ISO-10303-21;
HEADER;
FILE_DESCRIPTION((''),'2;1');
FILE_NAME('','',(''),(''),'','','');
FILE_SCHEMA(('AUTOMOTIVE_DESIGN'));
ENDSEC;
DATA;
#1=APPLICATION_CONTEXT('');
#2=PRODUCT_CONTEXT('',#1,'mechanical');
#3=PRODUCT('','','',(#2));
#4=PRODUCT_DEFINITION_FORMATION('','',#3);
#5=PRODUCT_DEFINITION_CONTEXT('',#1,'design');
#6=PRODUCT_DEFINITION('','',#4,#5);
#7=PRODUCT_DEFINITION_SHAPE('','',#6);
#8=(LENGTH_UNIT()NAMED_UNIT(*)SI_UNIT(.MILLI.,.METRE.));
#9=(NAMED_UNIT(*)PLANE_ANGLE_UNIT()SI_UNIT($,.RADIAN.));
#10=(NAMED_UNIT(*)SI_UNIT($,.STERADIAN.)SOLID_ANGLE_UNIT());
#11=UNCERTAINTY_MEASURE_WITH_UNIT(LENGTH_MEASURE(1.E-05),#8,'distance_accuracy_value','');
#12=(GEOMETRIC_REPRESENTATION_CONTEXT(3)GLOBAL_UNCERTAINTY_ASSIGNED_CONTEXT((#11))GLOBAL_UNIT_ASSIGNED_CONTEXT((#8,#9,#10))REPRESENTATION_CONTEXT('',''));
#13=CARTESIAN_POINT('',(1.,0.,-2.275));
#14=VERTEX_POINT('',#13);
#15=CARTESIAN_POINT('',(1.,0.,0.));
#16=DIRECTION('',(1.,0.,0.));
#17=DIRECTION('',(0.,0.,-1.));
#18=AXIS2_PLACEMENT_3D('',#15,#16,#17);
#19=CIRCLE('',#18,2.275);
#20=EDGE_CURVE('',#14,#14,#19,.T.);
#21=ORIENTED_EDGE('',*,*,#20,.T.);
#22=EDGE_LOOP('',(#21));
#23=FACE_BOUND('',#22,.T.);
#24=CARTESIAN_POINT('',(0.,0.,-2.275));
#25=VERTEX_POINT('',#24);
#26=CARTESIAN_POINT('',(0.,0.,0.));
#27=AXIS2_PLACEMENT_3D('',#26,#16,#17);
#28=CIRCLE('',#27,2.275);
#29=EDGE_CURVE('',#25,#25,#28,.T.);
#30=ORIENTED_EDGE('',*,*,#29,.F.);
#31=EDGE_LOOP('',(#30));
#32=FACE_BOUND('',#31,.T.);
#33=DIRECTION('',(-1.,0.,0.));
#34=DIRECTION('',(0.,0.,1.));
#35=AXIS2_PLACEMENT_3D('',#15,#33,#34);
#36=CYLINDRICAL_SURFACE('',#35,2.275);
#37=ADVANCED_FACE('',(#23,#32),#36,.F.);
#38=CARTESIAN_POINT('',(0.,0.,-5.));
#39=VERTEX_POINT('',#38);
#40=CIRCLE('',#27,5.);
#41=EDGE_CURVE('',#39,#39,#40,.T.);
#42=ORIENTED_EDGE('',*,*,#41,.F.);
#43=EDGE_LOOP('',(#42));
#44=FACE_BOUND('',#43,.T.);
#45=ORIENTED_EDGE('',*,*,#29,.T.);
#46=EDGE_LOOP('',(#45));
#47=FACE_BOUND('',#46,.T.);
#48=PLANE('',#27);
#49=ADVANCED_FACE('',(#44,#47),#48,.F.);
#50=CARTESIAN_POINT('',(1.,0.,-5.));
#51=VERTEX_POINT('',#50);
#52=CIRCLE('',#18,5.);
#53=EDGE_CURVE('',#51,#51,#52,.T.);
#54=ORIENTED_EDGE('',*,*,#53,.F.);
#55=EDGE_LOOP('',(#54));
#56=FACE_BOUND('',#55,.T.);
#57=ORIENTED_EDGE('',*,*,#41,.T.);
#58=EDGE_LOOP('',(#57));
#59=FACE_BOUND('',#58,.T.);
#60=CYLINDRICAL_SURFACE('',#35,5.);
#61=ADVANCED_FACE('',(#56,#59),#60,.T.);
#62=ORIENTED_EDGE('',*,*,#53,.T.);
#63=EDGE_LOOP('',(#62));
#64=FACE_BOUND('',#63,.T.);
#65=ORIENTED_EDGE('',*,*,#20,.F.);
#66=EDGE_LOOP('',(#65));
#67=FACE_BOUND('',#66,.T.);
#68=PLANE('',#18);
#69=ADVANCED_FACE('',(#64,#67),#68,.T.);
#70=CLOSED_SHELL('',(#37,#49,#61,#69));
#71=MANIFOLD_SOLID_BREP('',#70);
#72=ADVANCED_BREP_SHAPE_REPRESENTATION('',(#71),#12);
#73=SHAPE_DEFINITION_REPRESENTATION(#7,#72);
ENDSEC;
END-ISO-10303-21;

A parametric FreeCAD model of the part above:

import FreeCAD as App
import Part
import Sketcher

V = App.Vector

doc = App.newDocument("Part")
params = doc.addObject("Spreadsheet::Sheet", "Params")
for row, (alias, value) in enumerate([
    ("sketch1_diameter", "10 mm"),
    ("sketch1_diameter2", "4.55 mm"),
    ("pad1_length", "1 mm"),
], start=1):
    params.set(f"A{row}", alias)
    params.set(f"B{row}", "=" + value)
    params.setAlias(f"B{row}", alias)

body = doc.addObject("PartDesign::Body", "Body")

sketch1 = doc.addObject("Sketcher::SketchObject", "Sketch")
body.addObject(sketch1)
sketch1.AttachmentSupport = (doc.YZ_Plane, [""])
sketch1.MapMode = "FlatFace"
sketch1.addGeometry([
    Part.Circle(V(0, 0, 0), V(0, 0, 1), 5),
    Part.Circle(V(0, 0, 0), V(0, 0, 1), 2.3),
], False)
sketch1.addConstraint([
    Sketcher.Constraint("Coincident", 0, 3, -1, 1),
    Sketcher.Constraint("Coincident", 1, 3, -1, 1),
    Sketcher.Constraint("Diameter", 0, 10.0),
    Sketcher.Constraint("Diameter", 1, 4.55),
])
sketch1.setExpression("Constraints[2]", "Params.sketch1_diameter")
sketch1.setExpression("Constraints[3]", "Params.sketch1_diameter2")
pad1 = doc.addObject("PartDesign::Pad", "Pad")
body.addObject(pad1)
pad1.Profile = sketch1
pad1.setExpression("Length", "Params.pad1_length")

doc.recompute()
